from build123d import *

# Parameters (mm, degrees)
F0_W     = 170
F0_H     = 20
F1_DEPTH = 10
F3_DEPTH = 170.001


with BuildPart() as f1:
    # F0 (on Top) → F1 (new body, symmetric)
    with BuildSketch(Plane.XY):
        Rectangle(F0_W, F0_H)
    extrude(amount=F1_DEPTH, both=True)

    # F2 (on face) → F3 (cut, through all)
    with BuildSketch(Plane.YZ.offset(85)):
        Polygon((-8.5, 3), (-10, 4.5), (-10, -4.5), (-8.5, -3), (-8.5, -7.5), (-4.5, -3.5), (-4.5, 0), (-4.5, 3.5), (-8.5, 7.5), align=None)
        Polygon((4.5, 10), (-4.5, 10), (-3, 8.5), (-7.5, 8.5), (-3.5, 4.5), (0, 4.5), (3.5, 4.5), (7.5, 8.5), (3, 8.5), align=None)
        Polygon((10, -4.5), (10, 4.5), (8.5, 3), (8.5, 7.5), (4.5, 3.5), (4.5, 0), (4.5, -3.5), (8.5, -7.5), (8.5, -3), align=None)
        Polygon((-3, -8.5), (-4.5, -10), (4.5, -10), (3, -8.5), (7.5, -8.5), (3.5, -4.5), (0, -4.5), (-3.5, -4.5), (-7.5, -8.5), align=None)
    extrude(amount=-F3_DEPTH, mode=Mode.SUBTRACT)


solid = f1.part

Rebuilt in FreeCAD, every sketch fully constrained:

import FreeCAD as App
import Part
import Sketcher


def add_polygon(sketch, points):
    """Adds a closed chain of lines whose ends are joined by coincident constraints."""
    first, n = sketch.GeometryCount, len(points)
    for a, b in zip(points, points[1:] + points[:1]):
        sketch.addGeometry(Part.LineSegment(App.Vector(*a, 0), App.Vector(*b, 0)), False)
    for i in range(n):
        sketch.addConstraint(Sketcher.Constraint("Coincident", first + i, 2, first + (i + 1) % n, 1))

doc = App.newDocument("Part")
body = doc.addObject("PartDesign::Body", "Body")

# Sketch on XY plane
sketch1 = body.newObject("Sketcher::SketchObject", "Sketch")
sketch1.AttachmentSupport = (doc.getObject("XY_Plane"), [""])
sketch1.MapMode = "FlatFace"
add_polygon(sketch1, [(-85, 10), (-85, -10), (85, -10), (85, 10)])  # lines 0-3
sketch1.addConstraint([
    Sketcher.Constraint("Vertical", 0),
    Sketcher.Constraint("Horizontal", 1),
    Sketcher.Constraint("Vertical", 2),
    Sketcher.Constraint("Horizontal", 3),
    Sketcher.Constraint("Symmetric", 0, 2, 2, 2, -1, 1),
    Sketcher.Constraint("DistanceX", 1, 1, 1, 2, 170.0),
    Sketcher.Constraint("DistanceY", 0, 2, 0, 1, 20.0),
])
pad1 = body.newObject("PartDesign::Pad", "Pad")
pad1.Profile = sketch1
pad1.Length = 20
pad1.Midplane = True

# Sketch on YZ plane
sketch2 = body.newObject("Sketcher::SketchObject", "Sketch001")
sketch2.AttachmentSupport = (doc.getObject("YZ_Plane"), [""])
sketch2.MapMode = "FlatFace"
sketch2.AttachmentOffset = App.Placement(App.Vector(0, 0, 85), App.Rotation())
add_polygon(sketch2, [(-8.5, 3), (-10, 4.5), (-10, -4.5), (-8.5, -3), (-8.5, -7.5), (-4.5, -3.5), (-4.5, 3.5), (-8.5, 7.5)])  # lines 0-7
add_polygon(sketch2, [(4.5, 10), (-4.5, 10), (-3, 8.5), (-7.5, 8.5), (-3.5, 4.5), (3.5, 4.5), (7.5, 8.5), (3, 8.5)])  # lines 8-15
add_polygon(sketch2, [(10, -4.5), (10, 4.5), (8.5, 3), (8.5, 7.5), (4.5, 3.5), (4.5, -3.5), (8.5, -7.5), (8.5, -3)])  # lines 16-23
add_polygon(sketch2, [(-3, -8.5), (-4.5, -10), (4.5, -10), (3, -8.5), (7.5, -8.5), (3.5, -4.5), (-3.5, -4.5), (-7.5, -8.5)])  # lines 24-31
sketch2.addConstraint([
    Sketcher.Constraint("Vertical", 1),
    Sketcher.Constraint("Vertical", 3),
    Sketcher.Constraint("Vertical", 5),
    Sketcher.Constraint("Vertical", 7),
    Sketcher.Constraint("Horizontal", 8),
    Sketcher.Constraint("Horizontal", 10),
    Sketcher.Constraint("Horizontal", 12),
    Sketcher.Constraint("Horizontal", 14),
    Sketcher.Constraint("Vertical", 16),
    Sketcher.Constraint("Vertical", 18),
    Sketcher.Constraint("Vertical", 20),
    Sketcher.Constraint("Vertical", 22),
    Sketcher.Constraint("Horizontal", 25),
    Sketcher.Constraint("Horizontal", 27),
    Sketcher.Constraint("Horizontal", 29),
    Sketcher.Constraint("Horizontal", 31),
    Sketcher.Constraint("Symmetric", 1, 2, 16, 2, -1, 1),
    Sketcher.Constraint("Symmetric", 2, 2, 17, 2, -1, 1),
    Sketcher.Constraint("Symmetric", 4, 2, 19, 2, -1, 1),
    Sketcher.Constraint("Symmetric", 6, 2, 21, 2, -1, 1),
    Sketcher.Constraint("Symmetric", 15, 2, 24, 2, -1, 1),
    Sketcher.Constraint("Symmetric", 9, 2, 26, 2, -1, 1),
    Sketcher.Constraint("Symmetric", 11, 2, 28, 2, -1, 1),
    Sketcher.Constraint("Symmetric", 13, 2, 30, 2, -1, 1),
    Sketcher.Constraint("Symmetric", 10, 2, 13, 2, -2),
    Sketcher.Constraint("Symmetric", 7, 2, 17, 2, -2),
    Sketcher.Constraint("Perpendicular", 0, 2),
    Sketcher.Constraint("Parallel", 2, 4),
    Sketcher.Constraint("Perpendicular", 4, 6),
    Sketcher.Constraint("Parallel", 6, 9),
    Sketcher.Constraint("Parallel", 9, 11),
    Sketcher.Constraint("Perpendicular", 11, 13),
    Sketcher.Constraint("Parallel", 13, 15),
    Sketcher.Constraint("Parallel", 17, 19),
    Sketcher.Constraint("Perpendicular", 19, 21),
    Sketcher.Constraint("Parallel", 21, 23),
    Sketcher.Constraint("Perpendicular", 23, 24),
    Sketcher.Constraint("Perpendicular", 24, 26),
    Sketcher.Constraint("Parallel", 26, 28),
    Sketcher.Constraint("Perpendicular", 28, 30),
    Sketcher.Constraint("Horizontal", 0, 2, 11, 2),
    Sketcher.Constraint("Horizontal", 12, 2, 16, 2),
    Sketcher.Constraint("Horizontal", 6, 2, 18, 2),
    Sketcher.Constraint("Horizontal", 2, 2, 22, 2),
    Sketcher.Constraint("Vertical", 5, 2, 8, 2),
    Sketcher.Constraint("Vertical", 15, 2, 19, 2),
    Sketcher.Constraint("Equal", 25, 1),
    Sketcher.Constraint("Equal", 31, 3),
    Sketcher.Constraint("Equal", 29, 5),
    Sketcher.Constraint("Equal", 2, 9),
    Sketcher.Constraint("DistanceX", 8, 2, 8, 1, 9.0),
    Sketcher.Constraint("DistanceX", 12, 1, 12, 2, 7.0),
    Sketcher.Constraint("DistanceX", 10, 2, 10, 1, 4.5),
    Sketcher.Constraint("DistanceY", 2, 2, -1, 1, 3.0),
])
pocket1 = body.newObject("PartDesign::Pocket", "Pocket")
pocket1.Profile = sketch2
pocket1.Type = "ThroughAll"

doc.recompute()
